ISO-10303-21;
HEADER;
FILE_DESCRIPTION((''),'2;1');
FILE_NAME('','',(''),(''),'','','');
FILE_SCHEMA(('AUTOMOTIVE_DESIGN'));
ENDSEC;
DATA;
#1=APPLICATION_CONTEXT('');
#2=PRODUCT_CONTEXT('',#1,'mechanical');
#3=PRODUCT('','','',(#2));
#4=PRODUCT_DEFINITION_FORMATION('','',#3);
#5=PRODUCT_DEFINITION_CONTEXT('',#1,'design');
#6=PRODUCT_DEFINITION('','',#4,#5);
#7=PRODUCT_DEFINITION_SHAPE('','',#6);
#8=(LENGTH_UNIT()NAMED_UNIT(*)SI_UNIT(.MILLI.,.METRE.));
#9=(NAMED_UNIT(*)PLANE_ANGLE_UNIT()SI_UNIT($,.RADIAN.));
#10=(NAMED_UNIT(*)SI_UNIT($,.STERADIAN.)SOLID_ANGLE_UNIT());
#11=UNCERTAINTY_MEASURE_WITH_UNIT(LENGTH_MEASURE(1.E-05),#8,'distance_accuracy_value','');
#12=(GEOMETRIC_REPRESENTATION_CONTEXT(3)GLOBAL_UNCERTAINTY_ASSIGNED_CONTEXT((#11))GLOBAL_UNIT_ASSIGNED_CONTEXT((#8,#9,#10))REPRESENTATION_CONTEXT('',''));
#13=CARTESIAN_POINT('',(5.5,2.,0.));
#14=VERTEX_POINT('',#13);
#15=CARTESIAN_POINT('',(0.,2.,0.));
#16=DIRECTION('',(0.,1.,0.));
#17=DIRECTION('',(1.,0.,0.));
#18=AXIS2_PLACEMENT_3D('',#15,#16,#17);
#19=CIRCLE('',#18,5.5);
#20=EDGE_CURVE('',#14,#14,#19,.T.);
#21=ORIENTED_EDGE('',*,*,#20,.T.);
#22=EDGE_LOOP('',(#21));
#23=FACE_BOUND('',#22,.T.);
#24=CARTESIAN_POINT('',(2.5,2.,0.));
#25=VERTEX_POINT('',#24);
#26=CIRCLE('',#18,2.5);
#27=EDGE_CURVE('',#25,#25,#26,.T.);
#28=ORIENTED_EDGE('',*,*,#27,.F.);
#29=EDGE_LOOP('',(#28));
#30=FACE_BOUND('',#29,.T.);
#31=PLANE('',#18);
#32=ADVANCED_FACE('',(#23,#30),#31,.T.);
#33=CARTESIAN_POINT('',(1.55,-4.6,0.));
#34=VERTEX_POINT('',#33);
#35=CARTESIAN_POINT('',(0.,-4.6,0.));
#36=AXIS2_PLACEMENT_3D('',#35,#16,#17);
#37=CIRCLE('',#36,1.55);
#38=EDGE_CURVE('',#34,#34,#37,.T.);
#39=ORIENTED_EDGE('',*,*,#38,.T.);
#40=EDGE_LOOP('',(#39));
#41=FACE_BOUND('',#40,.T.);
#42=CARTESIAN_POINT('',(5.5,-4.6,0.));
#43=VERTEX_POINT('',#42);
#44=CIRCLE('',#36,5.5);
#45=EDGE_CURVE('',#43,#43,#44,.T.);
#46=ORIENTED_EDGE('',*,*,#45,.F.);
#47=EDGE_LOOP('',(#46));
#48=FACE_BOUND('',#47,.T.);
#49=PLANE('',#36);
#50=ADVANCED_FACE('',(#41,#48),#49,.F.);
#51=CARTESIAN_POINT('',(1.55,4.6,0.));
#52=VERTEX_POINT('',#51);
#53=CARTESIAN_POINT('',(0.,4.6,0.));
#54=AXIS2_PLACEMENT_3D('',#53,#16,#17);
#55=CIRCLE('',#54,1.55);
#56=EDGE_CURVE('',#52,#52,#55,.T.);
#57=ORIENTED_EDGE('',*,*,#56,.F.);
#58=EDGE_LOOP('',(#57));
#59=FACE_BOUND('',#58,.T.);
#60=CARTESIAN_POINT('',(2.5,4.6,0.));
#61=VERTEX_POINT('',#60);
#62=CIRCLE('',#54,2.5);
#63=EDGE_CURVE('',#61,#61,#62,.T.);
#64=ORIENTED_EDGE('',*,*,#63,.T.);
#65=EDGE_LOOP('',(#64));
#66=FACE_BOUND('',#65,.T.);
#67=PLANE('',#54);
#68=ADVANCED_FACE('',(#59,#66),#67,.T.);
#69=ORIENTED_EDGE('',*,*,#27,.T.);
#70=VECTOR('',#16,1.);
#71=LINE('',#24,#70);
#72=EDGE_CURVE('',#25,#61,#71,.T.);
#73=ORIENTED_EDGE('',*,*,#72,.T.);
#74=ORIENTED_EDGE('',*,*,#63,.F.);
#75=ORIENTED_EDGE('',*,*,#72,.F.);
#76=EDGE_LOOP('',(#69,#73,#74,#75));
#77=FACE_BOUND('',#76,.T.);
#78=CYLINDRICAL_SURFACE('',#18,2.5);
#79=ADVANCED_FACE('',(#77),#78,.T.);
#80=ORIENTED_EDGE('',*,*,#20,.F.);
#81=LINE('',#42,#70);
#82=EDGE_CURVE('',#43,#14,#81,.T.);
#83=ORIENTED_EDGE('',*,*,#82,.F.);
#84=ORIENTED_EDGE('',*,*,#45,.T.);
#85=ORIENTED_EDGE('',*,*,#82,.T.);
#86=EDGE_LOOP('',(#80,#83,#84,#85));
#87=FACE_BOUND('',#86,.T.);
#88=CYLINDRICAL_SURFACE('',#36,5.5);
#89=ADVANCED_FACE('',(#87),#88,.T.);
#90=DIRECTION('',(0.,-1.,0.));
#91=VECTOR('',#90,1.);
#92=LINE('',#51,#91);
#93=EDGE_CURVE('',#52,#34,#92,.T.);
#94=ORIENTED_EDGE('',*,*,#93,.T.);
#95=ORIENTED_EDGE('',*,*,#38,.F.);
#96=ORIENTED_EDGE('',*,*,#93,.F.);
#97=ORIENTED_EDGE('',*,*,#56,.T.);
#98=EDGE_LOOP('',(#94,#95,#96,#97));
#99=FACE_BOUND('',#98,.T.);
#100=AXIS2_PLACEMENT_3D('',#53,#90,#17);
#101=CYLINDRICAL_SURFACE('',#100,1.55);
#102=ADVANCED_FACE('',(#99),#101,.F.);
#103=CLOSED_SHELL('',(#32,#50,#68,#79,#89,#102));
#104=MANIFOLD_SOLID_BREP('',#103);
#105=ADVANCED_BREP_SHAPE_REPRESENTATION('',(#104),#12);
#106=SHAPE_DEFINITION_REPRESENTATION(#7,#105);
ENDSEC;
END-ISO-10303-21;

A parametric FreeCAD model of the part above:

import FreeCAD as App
import Part
import Sketcher

V = App.Vector
Q = App.Units.Quantity

doc = App.newDocument("Part")
body = doc.addObject("PartDesign::Body", "Body")

# Sketch on XY plane
sketch1 = doc.addObject("Sketcher::SketchObject", "Sketch")
body.addObject(sketch1)
sketch1.AttachmentSupport = (doc.XY_Plane, [""])
sketch1.MapMode = "FlatFace"
sketch1.addGeometry([
    Part.LineSegment(V(2.5, 4.6, 0), V(1.55, 4.6, 0)),  # 0
    Part.LineSegment(V(1.55, 4.6, 0), V(1.55, -4.6, 0)),  # 1
    Part.LineSegment(V(1.55, -4.6, 0), V(5.5, -4.6, 0)),  # 2
    Part.LineSegment(V(5.5, -4.6, 0), V(5.5, 2, 0)),  # 3
    Part.LineSegment(V(5.5, 2, 0), V(2.5, 2, 0)),  # 4
    Part.LineSegment(V(2.5, 2, 0), V(2.5, 4.6, 0)),  # 5
], False)
sketch1.addConstraint([
    Sketcher.Constraint("Coincident", 0, 2, 1, 1),
    Sketcher.Constraint("Coincident", 1, 2, 2, 1),
    Sketcher.Constraint("Coincident", 2, 2, 3, 1),
    Sketcher.Constraint("Coincident", 3, 2, 4, 1),
    Sketcher.Constraint("Coincident", 4, 2, 5, 1),
    Sketcher.Constraint("Coincident", 5, 2, 0, 1),
    Sketcher.Constraint("Horizontal", 0),
    Sketcher.Constraint("Vertical", 1),
    Sketcher.Constraint("Horizontal", 2),
    Sketcher.Constraint("Vertical", 3),
    Sketcher.Constraint("Horizontal", 4),
    Sketcher.Constraint("Vertical", 5),
    Sketcher.Constraint("DistanceY", 3, 1, 3, 2, Q("6.6 mm")),
    Sketcher.Constraint("DistanceY", 5, 1, 5, 2, Q("2.6 mm")),
    Sketcher.Constraint("DistanceX", -1, 1, 2, 2, Q("5.5 mm")),
    Sketcher.Constraint("DistanceX", -1, 1, 4, 2, Q("2.5 mm")),
    Sketcher.Constraint("DistanceX", -1, 1, 0, 2, Q("1.55 mm")),
    Sketcher.Constraint("DistanceY", -1, 1, 3, 2, Q("2 mm")),
])
revolution = doc.addObject("PartDesign::Revolution", "Revolution")
body.addObject(revolution)
revolution.Profile = sketch1
revolution.ReferenceAxis = (sketch1, ["V_Axis"])
revolution.Angle = 360

doc.recompute()
